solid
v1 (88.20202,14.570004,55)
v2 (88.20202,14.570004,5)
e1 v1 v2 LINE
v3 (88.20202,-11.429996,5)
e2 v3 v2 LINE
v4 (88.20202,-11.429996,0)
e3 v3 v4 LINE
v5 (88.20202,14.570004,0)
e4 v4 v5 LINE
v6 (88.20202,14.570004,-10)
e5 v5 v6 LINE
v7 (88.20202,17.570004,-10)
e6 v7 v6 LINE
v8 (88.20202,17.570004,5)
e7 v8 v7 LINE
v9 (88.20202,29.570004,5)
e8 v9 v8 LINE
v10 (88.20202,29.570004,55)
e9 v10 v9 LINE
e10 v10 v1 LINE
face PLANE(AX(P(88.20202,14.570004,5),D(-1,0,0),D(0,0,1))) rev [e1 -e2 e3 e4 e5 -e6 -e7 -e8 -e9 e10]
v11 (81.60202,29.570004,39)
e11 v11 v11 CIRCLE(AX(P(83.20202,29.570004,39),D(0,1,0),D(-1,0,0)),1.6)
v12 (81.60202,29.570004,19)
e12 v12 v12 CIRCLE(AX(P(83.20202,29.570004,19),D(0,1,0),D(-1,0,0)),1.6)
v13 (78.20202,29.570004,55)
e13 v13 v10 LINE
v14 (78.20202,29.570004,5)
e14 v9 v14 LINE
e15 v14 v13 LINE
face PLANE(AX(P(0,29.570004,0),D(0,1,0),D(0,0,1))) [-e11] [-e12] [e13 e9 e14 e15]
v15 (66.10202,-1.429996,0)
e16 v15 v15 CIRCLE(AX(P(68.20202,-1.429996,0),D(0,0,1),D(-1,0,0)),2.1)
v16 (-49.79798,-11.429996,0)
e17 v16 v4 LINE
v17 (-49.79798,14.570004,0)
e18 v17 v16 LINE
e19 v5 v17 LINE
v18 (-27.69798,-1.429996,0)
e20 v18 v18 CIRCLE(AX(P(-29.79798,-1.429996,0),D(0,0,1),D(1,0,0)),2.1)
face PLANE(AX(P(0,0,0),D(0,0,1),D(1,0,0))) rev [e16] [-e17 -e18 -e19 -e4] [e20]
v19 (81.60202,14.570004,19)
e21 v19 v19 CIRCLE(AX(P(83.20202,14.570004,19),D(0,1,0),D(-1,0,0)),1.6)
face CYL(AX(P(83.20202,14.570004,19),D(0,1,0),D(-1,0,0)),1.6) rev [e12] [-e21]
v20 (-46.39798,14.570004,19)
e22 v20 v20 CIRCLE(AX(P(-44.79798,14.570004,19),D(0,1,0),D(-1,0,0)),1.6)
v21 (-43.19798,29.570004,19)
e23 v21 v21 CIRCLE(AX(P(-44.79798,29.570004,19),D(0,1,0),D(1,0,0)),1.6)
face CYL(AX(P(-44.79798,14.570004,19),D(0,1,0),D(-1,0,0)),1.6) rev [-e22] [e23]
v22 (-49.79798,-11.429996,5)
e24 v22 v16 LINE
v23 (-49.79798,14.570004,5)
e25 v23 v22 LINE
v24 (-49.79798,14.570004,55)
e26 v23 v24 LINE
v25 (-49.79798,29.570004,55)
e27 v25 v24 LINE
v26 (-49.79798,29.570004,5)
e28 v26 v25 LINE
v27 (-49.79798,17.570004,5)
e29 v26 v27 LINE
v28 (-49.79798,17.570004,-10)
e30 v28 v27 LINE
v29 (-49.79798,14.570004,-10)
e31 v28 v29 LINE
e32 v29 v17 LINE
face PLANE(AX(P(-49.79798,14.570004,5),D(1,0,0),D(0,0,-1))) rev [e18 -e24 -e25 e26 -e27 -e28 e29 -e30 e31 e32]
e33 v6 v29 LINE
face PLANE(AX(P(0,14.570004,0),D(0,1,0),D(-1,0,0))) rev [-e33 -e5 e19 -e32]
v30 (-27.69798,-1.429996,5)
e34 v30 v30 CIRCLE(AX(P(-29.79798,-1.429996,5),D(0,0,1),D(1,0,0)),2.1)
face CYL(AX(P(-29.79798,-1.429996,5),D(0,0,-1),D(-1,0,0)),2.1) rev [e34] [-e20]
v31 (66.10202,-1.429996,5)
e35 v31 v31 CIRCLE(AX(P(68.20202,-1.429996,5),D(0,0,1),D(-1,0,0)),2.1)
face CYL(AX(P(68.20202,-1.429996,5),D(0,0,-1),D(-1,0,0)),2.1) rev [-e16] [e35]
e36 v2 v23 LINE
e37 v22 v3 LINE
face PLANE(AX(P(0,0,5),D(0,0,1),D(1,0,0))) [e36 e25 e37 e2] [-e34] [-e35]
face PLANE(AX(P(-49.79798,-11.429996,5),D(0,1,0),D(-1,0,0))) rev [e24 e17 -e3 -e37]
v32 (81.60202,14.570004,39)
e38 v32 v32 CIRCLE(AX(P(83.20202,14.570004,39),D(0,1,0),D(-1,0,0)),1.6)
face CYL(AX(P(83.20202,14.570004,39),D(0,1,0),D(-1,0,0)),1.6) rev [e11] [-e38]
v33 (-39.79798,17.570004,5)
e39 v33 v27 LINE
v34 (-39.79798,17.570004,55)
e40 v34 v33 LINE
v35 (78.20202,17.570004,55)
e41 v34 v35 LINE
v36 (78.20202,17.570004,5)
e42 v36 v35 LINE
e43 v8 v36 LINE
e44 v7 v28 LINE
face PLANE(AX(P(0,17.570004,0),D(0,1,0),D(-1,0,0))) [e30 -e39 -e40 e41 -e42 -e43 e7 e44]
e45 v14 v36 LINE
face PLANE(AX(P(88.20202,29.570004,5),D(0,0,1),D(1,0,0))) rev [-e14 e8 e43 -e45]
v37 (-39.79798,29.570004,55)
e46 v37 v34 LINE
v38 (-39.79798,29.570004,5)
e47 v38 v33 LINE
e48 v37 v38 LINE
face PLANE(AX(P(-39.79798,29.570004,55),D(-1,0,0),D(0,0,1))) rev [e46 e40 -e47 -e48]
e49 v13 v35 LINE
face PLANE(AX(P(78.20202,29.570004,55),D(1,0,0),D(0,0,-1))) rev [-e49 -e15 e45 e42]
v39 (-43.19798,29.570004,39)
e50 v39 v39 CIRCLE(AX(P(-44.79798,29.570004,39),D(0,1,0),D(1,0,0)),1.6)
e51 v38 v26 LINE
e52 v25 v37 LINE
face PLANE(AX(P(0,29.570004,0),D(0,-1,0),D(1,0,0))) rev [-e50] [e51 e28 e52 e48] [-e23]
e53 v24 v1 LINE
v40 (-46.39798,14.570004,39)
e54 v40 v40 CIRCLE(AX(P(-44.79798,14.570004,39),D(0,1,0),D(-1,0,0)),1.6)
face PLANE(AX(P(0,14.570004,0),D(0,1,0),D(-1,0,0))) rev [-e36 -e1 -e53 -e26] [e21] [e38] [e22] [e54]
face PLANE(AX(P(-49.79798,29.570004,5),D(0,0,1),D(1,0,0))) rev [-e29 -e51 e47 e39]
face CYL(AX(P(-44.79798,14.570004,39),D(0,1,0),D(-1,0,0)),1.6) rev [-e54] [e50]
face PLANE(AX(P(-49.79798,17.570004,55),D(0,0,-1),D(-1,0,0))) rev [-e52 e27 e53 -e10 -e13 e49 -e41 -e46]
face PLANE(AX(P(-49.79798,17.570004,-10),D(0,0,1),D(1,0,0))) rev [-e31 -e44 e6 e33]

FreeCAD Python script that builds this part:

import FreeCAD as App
import Part
import Sketcher
from FreeCAD import Vector

doc = App.newDocument("Part")
body = doc.addObject("PartDesign::Body", "Body")

# Sketch on XY plane
sketch1 = doc.addObject("Sketcher::SketchObject", "Sketch")
body.addObject(sketch1)
sketch1.AttachmentSupport = (doc.XY_Plane, [""])
sketch1.MapMode = "FlatFace"
sketch1.addGeometry([
    Part.LineSegment(Vector(-49.8, 14.6, 0), Vector(-49.8, -11.4, 0)),  # 0
    Part.LineSegment(Vector(-49.8, -11.4, 0), Vector(88.2, -11.4, 0)),  # 1
    Part.LineSegment(Vector(88.2, -11.4, 0), Vector(88.2, 14.6, 0)),  # 2
    Part.LineSegment(Vector(88.2, 14.6, 0), Vector(-49.8, 14.6, 0)),  # 3
    Part.Circle(Vector(-29.8, -1.4, 0), Vector(0, 0, 1), 2.1),  # 4
    Part.Circle(Vector(68.2, -1.4, 0), Vector(0, 0, 1), 2.1),  # 5
], False)
sketch1.addConstraint([
    Sketcher.Constraint("Coincident", 0, 2, 1, 1),
    Sketcher.Constraint("Coincident", 1, 2, 2, 1),
    Sketcher.Constraint("Coincident", 2, 2, 3, 1),
    Sketcher.Constraint("Coincident", 3, 2, 0, 1),
    Sketcher.Constraint("Vertical", 0),
    Sketcher.Constraint("Horizontal", 1),
    Sketcher.Constraint("Vertical", 2),
    Sketcher.Constraint("Horizontal", 3),
    Sketcher.Constraint("Equal", 4, 5),
    Sketcher.Constraint("Horizontal", 4, 3, 5, 3),
    Sketcher.Constraint("Diameter", 4, 4.2),
    Sketcher.Constraint("DistanceX", 1, 1, 1, 2, 138.0),
    Sketcher.Constraint("DistanceY", 0, 2, 0, 1, 26.0),
    Sketcher.Constraint("DistanceX", 4, 3, 5, 3, 98.0),
    Sketcher.Constraint("DistanceX", 0, 2, 4, 3, 20.0),
    Sketcher.Constraint("DistanceY", 0, 2, 4, 3, 10.0),
    Sketcher.Constraint("DistanceX", 4, 3, -1, 1, 29.79798),
    Sketcher.Constraint("DistanceY", 4, 3, -1, 1, 1.429996),
])
pad1 = doc.addObject("PartDesign::Pad", "Pad")
body.addObject(pad1)
pad1.Profile = sketch1
pad1.Length = 5

# Sketch on XZ plane
sketch2 = doc.addObject("Sketcher::SketchObject", "Sketch001")
body.addObject(sketch2)
sketch2.AttachmentSupport = (doc.XZ_Plane, [""])
sketch2.MapMode = "FlatFace"
sketch2.AttachmentOffset = App.Placement(Vector(0, 0, -14.570004), App.Rotation())
sketch2.addGeometry([
    Part.LineSegment(Vector(-50, -10, 0), Vector(-50, 55, 0)),
    Part.LineSegment(Vector(-50, 55, 0), Vector(88, 55, 0)),
    Part.LineSegment(Vector(88, 55, 0), Vector(88, -10, 0)),
    Part.LineSegment(Vector(88, -10, 0), Vector(-50, -10, 0)),
], False)
sketch2.addConstraint([
    Sketcher.Constraint("Coincident", 0, 2, 1, 1),
    Sketcher.Constraint("Coincident", 1, 2, 2, 1),
    Sketcher.Constraint("Coincident", 2, 2, 3, 1),
    Sketcher.Constraint("Coincident", 3, 2, 0, 1),
    Sketcher.Constraint("Vertical", 0),
    Sketcher.Constraint("Horizontal", 1),
    Sketcher.Constraint("Vertical", 2),
    Sketcher.Constraint("Horizontal", 3),
    Sketcher.Constraint("DistanceX", 1, 1, 1, 2, 138.0),
    Sketcher.Constraint("DistanceY", 0, 1, 0, 2, 65.0),
    Sketcher.Constraint("DistanceY", -1, 1, 0, 2, 55.0),
    Sketcher.Constraint("DistanceX", 0, 2, -1, 1, 49.79798),
])
pad2 = doc.addObject("PartDesign::Pad", "Pad001")
body.addObject(pad2)
pad2.Profile = sketch2
pad2.Length = 3
pad2.Reversed = True

# Sketch on XZ plane
sketch3 = doc.addObject("Sketcher::SketchObject", "Sketch002")
body.addObject(sketch3)
sketch3.AttachmentSupport = (doc.XZ_Plane, [""])
sketch3.MapMode = "FlatFace"
sketch3.AttachmentOffset = App.Placement(Vector(0, 0, -17.570004), App.Rotation())
sketch3.addGeometry([
    Part.Circle(Vector(-44.8, 19, 0), Vector(0, 0, 1), 1.6),
    Part.Circle(Vector(-44.8, 39, 0), Vector(0, 0, 1), 1.6),
    Part.Circle(Vector(83.2, 19, 0), Vector(0, 0, 1), 1.6),
    Part.Circle(Vector(83.2, 39, 0), Vector(0, 0, 1), 1.6),
], False)
sketch3.addConstraint([
    Sketcher.Constraint("Equal", 0, 1),
    Sketcher.Constraint("Equal", 1, 2),
    Sketcher.Constraint("Equal", 2, 3),
    Sketcher.Constraint("Horizontal", 0, 3, 2, 3),
    Sketcher.Constraint("Horizontal", 1, 3, 3, 3),
    Sketcher.Constraint("Vertical", 0, 3, 1, 3),
    Sketcher.Constraint("Vertical", 2, 3, 3, 3),
    Sketcher.Constraint("Diameter", 0, 3.2),
    Sketcher.Constraint("DistanceY", -1, 1, 0, 3, 19.0),
    Sketcher.Constraint("DistanceY", -1, 1, 1, 3, 39.0),
    Sketcher.Constraint("DistanceX", 0, 3, 2, 3, 128.0),
    Sketcher.Constraint("DistanceX", 0, 3, -1, 1, 44.79798),
])
pocket1 = doc.addObject("PartDesign::Pocket", "Pocket")
body.addObject(pocket1)
pocket1.Profile = sketch3
pocket1.Length = 3
pocket1.Reversed = True

# Sketch on XZ plane
sketch4 = doc.addObject("Sketcher::SketchObject", "Sketch003")
body.addObject(sketch4)
sketch4.AttachmentSupport = (doc.XZ_Plane, [""])
sketch4.MapMode = "FlatFace"
sketch4.AttachmentOffset = App.Placement(Vector(0, 0, -17.570004), App.Rotation())
sketch4.addGeometry([
    Part.LineSegment(Vector(78.2, 5, 0), Vector(78.2, 55, 0)),  # 0
    Part.LineSegment(Vector(78.2, 55, 0), Vector(88.2, 55, 0)),  # 1
    Part.LineSegment(Vector(88.2, 55, 0), Vector(88.2, 5, 0)),  # 2
    Part.LineSegment(Vector(88.2, 5, 0), Vector(78.2, 5, 0)),  # 3
    Part.Circle(Vector(83.2, 39, 0), Vector(0, 0, 1), 1.6),  # 4
    Part.Circle(Vector(83.2, 19, 0), Vector(0, 0, 1), 1.6),  # 5
    Part.LineSegment(Vector(-49.8, 5, 0), Vector(-49.8, 55, 0)),  # 6
    Part.LineSegment(Vector(-49.8, 55, 0), Vector(-39.8, 55, 0)),  # 7
    Part.LineSegment(Vector(-39.8, 55, 0), Vector(-39.8, 5, 0)),  # 8
    Part.LineSegment(Vector(-39.8, 5, 0), Vector(-49.8, 5, 0)),  # 9
    Part.Circle(Vector(-44.8, 39, 0), Vector(0, 0, 1), 1.6),  # 10
    Part.Circle(Vector(-44.8, 19, 0), Vector(0, 0, 1), 1.6),  # 11
], False)
sketch4.addConstraint([
    Sketcher.Constraint("Coincident", 0, 2, 1, 1),
    Sketcher.Constraint("Coincident", 1, 2, 2, 1),
    Sketcher.Constraint("Coincident", 2, 2, 3, 1),
    Sketcher.Constraint("Coincident", 3, 2, 0, 1),
    Sketcher.Constraint("Coincident", 6, 2, 7, 1),
    Sketcher.Constraint("Coincident", 7, 2, 8, 1),
    Sketcher.Constraint("Coincident", 8, 2, 9, 1),
    Sketcher.Constraint("Coincident", 9, 2, 6, 1),
    Sketcher.Constraint("Vertical", 0),
    Sketcher.Constraint("Horizontal", 1),
    Sketcher.Constraint("Vertical", 2),
    Sketcher.Constraint("Horizontal", 3),
    Sketcher.Constraint("Vertical", 6),
    Sketcher.Constraint("Horizontal", 7),
    Sketcher.Constraint("Vertical", 8),
    Sketcher.Constraint("Horizontal", 9),
    Sketcher.Constraint("Equal", 4, 5),
    Sketcher.Constraint("Equal", 5, 10),
    Sketcher.Constraint("Equal", 10, 11),
    Sketcher.Constraint("Horizontal", 4, 3, 10, 3),
    Sketcher.Constraint("Horizontal", 5, 3, 11, 3),
    Sketcher.Constraint("Horizontal", 1, 2, 6, 2),
    Sketcher.Constraint("Horizontal", 3, 2, 8, 2),
    Sketcher.Constraint("Vertical", 4, 3, 5, 3),
    Sketcher.Constraint("Vertical", 10, 3, 11, 3),
    Sketcher.Constraint("Equal", 3, 7),
    Sketcher.Constraint("Diameter", 4, 3.2),
    Sketcher.Constraint("DistanceX", 1, 1, 1, 2, 10.0),
    Sketcher.Constraint("DistanceY", 0, 1, 0, 2, 50.0),
    Sketcher.Constraint("DistanceY", -1, 1, 4, 3, 39.0),
    Sketcher.Constraint("DistanceY", -1, 1, 5, 3, 19.0),
    Sketcher.Constraint("DistanceY", -1, 1, 0, 2, 55.0),
    Sketcher.Constraint("DistanceX", 10, 3, 4, 3, 128.0),
    Sketcher.Constraint("DistanceX", 0, 2, 4, 3, 5.0),
    Sketcher.Constraint("DistanceX", 6, 2, 10, 3, 5.0),
    Sketcher.Constraint("DistanceX", -1, 1, 4, 3, 83.20202),
])
pad3 = doc.addObject("PartDesign::Pad", "Pad002")
body.addObject(pad3)
pad3.Profile = sketch4
pad3.Length = 12
pad3.Reversed = True

doc.recompute()
